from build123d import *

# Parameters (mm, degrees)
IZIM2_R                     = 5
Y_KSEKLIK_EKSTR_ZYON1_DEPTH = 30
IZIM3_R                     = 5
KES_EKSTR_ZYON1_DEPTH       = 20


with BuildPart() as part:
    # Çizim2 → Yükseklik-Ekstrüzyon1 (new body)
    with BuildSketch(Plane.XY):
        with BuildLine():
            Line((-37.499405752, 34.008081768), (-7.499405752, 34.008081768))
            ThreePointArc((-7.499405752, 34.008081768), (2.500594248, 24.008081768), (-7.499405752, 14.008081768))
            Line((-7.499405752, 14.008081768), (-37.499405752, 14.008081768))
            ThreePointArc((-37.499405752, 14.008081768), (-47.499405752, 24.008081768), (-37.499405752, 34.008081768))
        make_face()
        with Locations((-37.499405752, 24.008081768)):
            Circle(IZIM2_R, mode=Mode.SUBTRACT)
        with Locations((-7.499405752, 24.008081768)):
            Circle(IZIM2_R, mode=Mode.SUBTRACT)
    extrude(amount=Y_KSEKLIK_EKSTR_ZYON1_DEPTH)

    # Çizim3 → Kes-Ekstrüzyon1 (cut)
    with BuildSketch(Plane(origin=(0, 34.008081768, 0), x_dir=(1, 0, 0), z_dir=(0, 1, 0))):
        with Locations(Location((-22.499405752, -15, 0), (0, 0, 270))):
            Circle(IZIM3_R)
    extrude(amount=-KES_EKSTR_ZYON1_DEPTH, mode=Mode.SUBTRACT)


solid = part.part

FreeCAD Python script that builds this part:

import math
import FreeCAD as App
import Part
import Sketcher
from FreeCAD import Vector

doc = App.newDocument("Part")
params = doc.addObject("Spreadsheet::Sheet", "Params")
for row, (alias, value) in enumerate([
    ("sketch1_diameter", "10 mm"),
    ("sketch1_radius", "10 mm"),
    ("sketch1_width", "30 mm"),
    ("pad1_length", "30 mm"),
    ("sketch2_diameter", "10 mm"),
    ("pocket1_length", "20 mm"),
], start=1):
    params.set(f"A{row}", alias)
    params.set(f"B{row}", "=" + value)
    params.setAlias(f"B{row}", alias)

body = doc.addObject("PartDesign::Body", "Body")

# Sketch on XY plane
sketch1 = doc.addObject("Sketcher::SketchObject", "Sketch")
body.addObject(sketch1)
sketch1.AttachmentSupport = (doc.XY_Plane, [""])
sketch1.MapMode = "FlatFace"
sketch1.addGeometry([
    Part.LineSegment(Vector(-7, 34, 0), Vector(-37, 34, 0)),  # 0
    Part.ArcOfCircle(Part.Circle(Vector(-37, 24, 0), Vector(0, 0, 1), 10), math.radians(90), math.radians(270)),  # 1
    Part.LineSegment(Vector(-37, 14, 0), Vector(-7, 14, 0)),  # 2
    Part.ArcOfCircle(Part.Circle(Vector(-7, 24, 0), Vector(0, 0, 1), 10), math.radians(-90), math.radians(90)),  # 3
    Part.Circle(Vector(-7, 24, 0), Vector(0, 0, 1), 5),  # 4
    Part.Circle(Vector(-37, 24, 0), Vector(0, 0, 1), 5),  # 5
], False)
sketch1.addConstraint([
    Sketcher.Constraint("Tangent", 0, 2, 1, 1),
    Sketcher.Constraint("Tangent", 1, 2, 2, 1),
    Sketcher.Constraint("Tangent", 2, 2, 3, 1),
    Sketcher.Constraint("Tangent", 3, 2, 0, 1),
    Sketcher.Constraint("Horizontal", 0),
    Sketcher.Constraint("Horizontal", 2),
    Sketcher.Constraint("Coincident", 4, 3, 3, 3),
    Sketcher.Constraint("Coincident", 5, 3, 1, 3),
    Sketcher.Constraint("Equal", 4, 5),
    Sketcher.Constraint("Diameter", 4, 10.0),
    Sketcher.Constraint("Radius", 1, 10.0),
    Sketcher.Constraint("DistanceX", 0, 2, 0, 1, 30.0),
    Sketcher.Constraint("DistanceY", -1, 1, 1, 3, 24.008082),
    Sketcher.Constraint("DistanceX", 1, 3, -1, 1, 37.499406),
])
sketch1.setExpression("Constraints[9]", "Params.sketch1_diameter")
sketch1.setExpression("Constraints[10]", "Params.sketch1_radius")
sketch1.setExpression("Constraints[11]", "Params.sketch1_width")
pad1 = doc.addObject("PartDesign::Pad", "Pad")
body.addObject(pad1)
pad1.Profile = sketch1
pad1.setExpression("Length", "Params.pad1_length")

# Sketch on XZ plane
sketch2 = doc.addObject("Sketcher::SketchObject", "Sketch001")
body.addObject(sketch2)
sketch2.AttachmentSupport = (doc.XZ_Plane, [""])
sketch2.MapMode = "FlatFace"
sketch2.AttachmentOffset = App.Placement(Vector(0, 0, -34.008082), App.Rotation())
sketch2.addGeometry(Part.Circle(Vector(-22, 15, 0), Vector(0, 0, 1), 5), False)
sketch2.addConstraint([
    Sketcher.Constraint("Diameter", 0, 10.0),
    Sketcher.Constraint("DistanceY", -1, 1, 0, 3, 15.0),
    Sketcher.Constraint("DistanceX", 0, 3, -1, 1, 22.499406),
])
sketch2.setExpression("Constraints[0]", "Params.sketch2_diameter")
pocket1 = doc.addObject("PartDesign::Pocket", "Pocket")
body.addObject(pocket1)
pocket1.Profile = sketch2
pocket1.setExpression("Length", "Params.pocket1_length")
pocket1.Reversed = True

doc.recompute()
